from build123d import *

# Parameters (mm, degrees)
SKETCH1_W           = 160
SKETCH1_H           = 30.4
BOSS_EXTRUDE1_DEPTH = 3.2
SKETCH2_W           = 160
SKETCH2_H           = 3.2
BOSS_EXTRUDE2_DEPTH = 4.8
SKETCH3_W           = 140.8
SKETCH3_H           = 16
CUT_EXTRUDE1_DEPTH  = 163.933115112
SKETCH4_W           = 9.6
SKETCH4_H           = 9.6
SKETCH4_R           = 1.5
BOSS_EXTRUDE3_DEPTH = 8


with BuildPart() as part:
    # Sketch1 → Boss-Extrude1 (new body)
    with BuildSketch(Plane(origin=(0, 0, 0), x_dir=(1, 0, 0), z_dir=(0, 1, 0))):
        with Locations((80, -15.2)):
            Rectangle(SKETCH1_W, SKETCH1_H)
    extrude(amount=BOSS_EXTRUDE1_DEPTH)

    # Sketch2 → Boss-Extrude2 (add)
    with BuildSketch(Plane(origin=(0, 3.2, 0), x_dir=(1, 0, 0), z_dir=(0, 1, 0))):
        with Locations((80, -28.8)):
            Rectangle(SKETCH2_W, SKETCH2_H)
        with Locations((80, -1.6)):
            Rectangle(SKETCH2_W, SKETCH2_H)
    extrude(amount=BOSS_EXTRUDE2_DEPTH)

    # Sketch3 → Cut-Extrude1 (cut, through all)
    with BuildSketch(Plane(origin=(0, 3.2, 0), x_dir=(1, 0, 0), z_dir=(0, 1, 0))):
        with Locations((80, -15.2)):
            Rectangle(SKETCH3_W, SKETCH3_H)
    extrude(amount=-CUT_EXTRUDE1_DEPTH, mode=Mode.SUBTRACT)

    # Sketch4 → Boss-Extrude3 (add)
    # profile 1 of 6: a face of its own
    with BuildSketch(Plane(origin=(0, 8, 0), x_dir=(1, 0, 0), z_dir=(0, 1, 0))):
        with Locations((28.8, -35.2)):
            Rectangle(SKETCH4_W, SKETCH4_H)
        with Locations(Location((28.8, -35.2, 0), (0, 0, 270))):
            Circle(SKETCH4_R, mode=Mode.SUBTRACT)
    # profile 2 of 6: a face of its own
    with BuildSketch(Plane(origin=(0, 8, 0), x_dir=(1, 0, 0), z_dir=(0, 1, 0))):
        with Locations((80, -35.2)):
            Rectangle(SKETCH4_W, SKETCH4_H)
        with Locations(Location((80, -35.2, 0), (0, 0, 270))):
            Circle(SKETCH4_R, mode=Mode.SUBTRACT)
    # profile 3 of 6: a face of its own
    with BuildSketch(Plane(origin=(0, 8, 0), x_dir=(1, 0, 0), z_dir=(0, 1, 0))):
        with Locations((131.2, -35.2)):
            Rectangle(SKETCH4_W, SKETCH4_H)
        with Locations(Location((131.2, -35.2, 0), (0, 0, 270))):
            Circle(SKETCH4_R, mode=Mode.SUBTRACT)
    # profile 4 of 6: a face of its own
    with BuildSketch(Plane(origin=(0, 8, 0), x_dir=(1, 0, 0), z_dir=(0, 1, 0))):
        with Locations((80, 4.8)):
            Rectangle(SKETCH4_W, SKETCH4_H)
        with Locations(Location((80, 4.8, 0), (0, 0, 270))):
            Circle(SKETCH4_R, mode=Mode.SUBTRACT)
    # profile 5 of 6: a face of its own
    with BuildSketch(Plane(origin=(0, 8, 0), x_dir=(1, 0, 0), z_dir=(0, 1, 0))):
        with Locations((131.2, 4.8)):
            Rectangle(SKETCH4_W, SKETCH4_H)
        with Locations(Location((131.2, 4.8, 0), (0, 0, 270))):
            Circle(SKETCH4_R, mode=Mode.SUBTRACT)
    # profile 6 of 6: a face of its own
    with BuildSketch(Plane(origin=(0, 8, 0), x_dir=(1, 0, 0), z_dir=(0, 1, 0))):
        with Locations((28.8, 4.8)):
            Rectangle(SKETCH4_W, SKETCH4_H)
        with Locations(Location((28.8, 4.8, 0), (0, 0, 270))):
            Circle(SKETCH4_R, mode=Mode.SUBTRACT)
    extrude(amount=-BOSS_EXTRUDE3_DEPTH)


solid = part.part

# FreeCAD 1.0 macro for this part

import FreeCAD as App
import Part
import Sketcher

V = App.Vector

doc = App.newDocument("Part")
params = doc.addObject("Spreadsheet::Sheet", "Params")
for row, (alias, value) in enumerate([
    ("sketch1_width", "160 mm"),
    ("sketch1_height", "30.4 mm"),
    ("pad1_length", "3.2 mm"),
    ("sketch2_width", "160 mm"),
    ("sketch2_height", "3.2 mm"),
    ("pad2_length", "4.8 mm"),
    ("sketch3_height", "16 mm"),
    ("sketch3_width", "140.8 mm"),
    ("sketch4_diameter", "3 mm"),
    ("sketch4_width", "9.6 mm"),
    ("pad3_length", "8 mm"),
], start=1):
    params.set(f"A{row}", alias)
    params.set(f"B{row}", "=" + value)
    params.setAlias(f"B{row}", alias)

body = doc.addObject("PartDesign::Body", "Body")

sketch1 = body.newObject("Sketcher::SketchObject", "Sketch")
sketch1.AttachmentSupport = (doc.getObject("XZ_Plane"), [""])
sketch1.MapMode = "FlatFace"
sketch1.addGeometry([
    Part.LineSegment(V(0, 0, 0), V(0, 30, 0)),
    Part.LineSegment(V(0, 30, 0), V(160, 30, 0)),
    Part.LineSegment(V(160, 30, 0), V(160, 0, 0)),
    Part.LineSegment(V(160, 0, 0), V(0, 0, 0)),
], False)
sketch1.addConstraint([
    Sketcher.Constraint("Coincident", 0, 2, 1, 1),
    Sketcher.Constraint("Coincident", 1, 2, 2, 1),
    Sketcher.Constraint("Coincident", 2, 2, 3, 1),
    Sketcher.Constraint("Coincident", 3, 2, 0, 1),
    Sketcher.Constraint("Vertical", 0),
    Sketcher.Constraint("Horizontal", 1),
    Sketcher.Constraint("Vertical", 2),
    Sketcher.Constraint("Horizontal", 3),
    Sketcher.Constraint("Coincident", 3, 2, -1, 1),
    Sketcher.Constraint("DistanceX", 1, 1, 1, 2, 160.0),
    Sketcher.Constraint("DistanceY", 0, 1, 0, 2, 30.4),
])
sketch1.setExpression("Constraints[9]", "Params.sketch1_width")
sketch1.setExpression("Constraints[10]", "Params.sketch1_height")
pad1 = body.newObject("PartDesign::Pad", "Pad")
pad1.Profile = sketch1
pad1.setExpression("Length", "Params.pad1_length")
pad1.Reversed = True

sketch2 = body.newObject("Sketcher::SketchObject", "Sketch001")
sketch2.AttachmentSupport = (doc.getObject("XZ_Plane"), [""])
sketch2.MapMode = "FlatFace"
sketch2.AttachmentOffset = App.Placement(V(0, 0, -3.2), App.Rotation())
sketch2.addGeometry([
    Part.LineSegment(V(0, 27.2, 0), V(0, 30.4, 0)),
    Part.LineSegment(V(0, 30.4, 0), V(160, 30.4, 0)),
    Part.LineSegment(V(160, 30.4, 0), V(160, 27.2, 0)),
    Part.LineSegment(V(160, 27.2, 0), V(0, 27.2, 0)),
    Part.LineSegment(V(0, 0, 0), V(0, 3.2, 0)),
    Part.LineSegment(V(0, 3.2, 0), V(160, 3.2, 0)),
    Part.LineSegment(V(160, 3.2, 0), V(160, 0, 0)),
    Part.LineSegment(V(160, 0, 0), V(0, 0, 0)),
], False)
sketch2.addConstraint([
    Sketcher.Constraint("Coincident", 0, 2, 1, 1),
    Sketcher.Constraint("Coincident", 1, 2, 2, 1),
    Sketcher.Constraint("Coincident", 2, 2, 3, 1),
    Sketcher.Constraint("Coincident", 3, 2, 0, 1),
    Sketcher.Constraint("Coincident", 4, 2, 5, 1),
    Sketcher.Constraint("Coincident", 5, 2, 6, 1),
    Sketcher.Constraint("Coincident", 6, 2, 7, 1),
    Sketcher.Constraint("Coincident", 7, 2, 4, 1),
    Sketcher.Constraint("Vertical", 0),
    Sketcher.Constraint("Horizontal", 1),
    Sketcher.Constraint("Vertical", 2),
    Sketcher.Constraint("Horizontal", 3),
    Sketcher.Constraint("Vertical", 4),
    Sketcher.Constraint("Horizontal", 5),
    Sketcher.Constraint("Vertical", 6),
    Sketcher.Constraint("Horizontal", 7),
    Sketcher.Constraint("Coincident", 7, 2, -1, 1),
    Sketcher.Constraint("PointOnObject", 0, 2, -2),
    Sketcher.Constraint("Vertical", 2, 2, 5, 2),
    Sketcher.Constraint("Equal", 2, 4),
    Sketcher.Constraint("DistanceX", 1, 1, 1, 2, 160.0),
    Sketcher.Constraint("DistanceY", 0, 1, 0, 2, 3.2),
    Sketcher.Constraint("DistanceY", 4, 2, 3, 2, 24.0),
])
sketch2.setExpression("Constraints[20]", "Params.sketch2_width")
sketch2.setExpression("Constraints[21]", "Params.sketch2_height")
pad2 = body.newObject("PartDesign::Pad", "Pad001")
pad2.Profile = sketch2
pad2.setExpression("Length", "Params.pad2_length")
pad2.Reversed = True

sketch3 = body.newObject("Sketcher::SketchObject", "Sketch002")
sketch3.AttachmentSupport = (doc.getObject("XZ_Plane"), [""])
sketch3.MapMode = "FlatFace"
sketch3.AttachmentOffset = App.Placement(V(0, 0, -3.2), App.Rotation())
sketch3.addGeometry([
    Part.LineSegment(V(10, 7, 0), V(10, 23, 0)),
    Part.LineSegment(V(10, 23, 0), V(150, 23, 0)),
    Part.LineSegment(V(150, 23, 0), V(150, 7, 0)),
    Part.LineSegment(V(150, 7, 0), V(10, 7, 0)),
], False)
sketch3.addConstraint([
    Sketcher.Constraint("Coincident", 0, 2, 1, 1),
    Sketcher.Constraint("Coincident", 1, 2, 2, 1),
    Sketcher.Constraint("Coincident", 2, 2, 3, 1),
    Sketcher.Constraint("Coincident", 3, 2, 0, 1),
    Sketcher.Constraint("Vertical", 0),
    Sketcher.Constraint("Horizontal", 1),
    Sketcher.Constraint("Vertical", 2),
    Sketcher.Constraint("Horizontal", 3),
    Sketcher.Constraint("DistanceY", 0, 1, 0, 2, 16.0),
    Sketcher.Constraint("DistanceX", 1, 1, 1, 2, 140.8),
    Sketcher.Constraint("DistanceX", -1, 1, 0, 2, 9.6),
    Sketcher.Constraint("DistanceY", -1, 1, 0, 2, 23.2),
])
sketch3.setExpression("Constraints[8]", "Params.sketch3_height")
sketch3.setExpression("Constraints[9]", "Params.sketch3_width")
pocket1 = body.newObject("PartDesign::Pocket", "Pocket")
pocket1.Profile = sketch3
pocket1.Type = "ThroughAll"
pocket1.Reversed = True

sketch4 = body.newObject("Sketcher::SketchObject", "Sketch003")
sketch4.AttachmentSupport = (doc.getObject("XZ_Plane"), [""])
sketch4.MapMode = "FlatFace"
sketch4.AttachmentOffset = App.Placement(V(0, 0, -8), App.Rotation())
sketch4.addGeometry([
    Part.LineSegment(V(24, 30.4, 0), V(24, 40, 0)),
    Part.LineSegment(V(24, 40, 0), V(33.6, 40, 0)),
    Part.LineSegment(V(33.6, 40, 0), V(33.6, 30.4, 0)),
    Part.LineSegment(V(33.6, 30.4, 0), V(24, 30.4, 0)),
    Part.Circle(V(28.8, 35.2, 0), V(0, 0, 1), 1.5),
    Part.LineSegment(V(75.2, 30.4, 0), V(75.2, 40, 0)),
    Part.LineSegment(V(75.2, 40, 0), V(84.8, 40, 0)),
    Part.LineSegment(V(84.8, 40, 0), V(84.8, 30.4, 0)),
    Part.LineSegment(V(84.8, 30.4, 0), V(75.2, 30.4, 0)),
    Part.Circle(V(80, 35.2, 0), V(0, 0, 1), 1.5),
    Part.LineSegment(V(126.4, 30.4, 0), V(126.4, 40, 0)),
    Part.LineSegment(V(126.4, 40, 0), V(136, 40, 0)),
    Part.LineSegment(V(136, 40, 0), V(136, 30.4, 0)),
    Part.LineSegment(V(136, 30.4, 0), V(126.4, 30.4, 0)),
    Part.Circle(V(131.2, 35.2, 0), V(0, 0, 1), 1.5),
    Part.LineSegment(V(75.2, -9.6, 0), V(75.2, 0, 0)),
    Part.LineSegment(V(75.2, 0, 0), V(84.8, 0, 0)),
    Part.LineSegment(V(84.8, 0, 0), V(84.8, -9.6, 0)),
    Part.LineSegment(V(84.8, -9.6, 0), V(75.2, -9.6, 0)),
    Part.Circle(V(80, -4.8, 0), V(0, 0, 1), 1.5),
    Part.LineSegment(V(126.4, -9.6, 0), V(126.4, 0, 0)),
    Part.LineSegment(V(126.4, 0, 0), V(136, 0, 0)),
    Part.LineSegment(V(136, 0, 0), V(136, -9.6, 0)),
    Part.LineSegment(V(136, -9.6, 0), V(126.4, -9.6, 0)),
    Part.Circle(V(131.2, -4.8, 0), V(0, 0, 1), 1.5),
    Part.LineSegment(V(24, -9.6, 0), V(24, 0, 0)),
    Part.LineSegment(V(24, 0, 0), V(33.6, 0, 0)),
    Part.LineSegment(V(33.6, 0, 0), V(33.6, -9.6, 0)),
    Part.LineSegment(V(33.6, -9.6, 0), V(24, -9.6, 0)),
    Part.Circle(V(28.8, -4.8, 0), V(0, 0, 1), 1.5),
], False)
sketch4.addConstraint([
    Sketcher.Constraint("Coincident", 0, 2, 1, 1),
    Sketcher.Constraint("Coincident", 1, 2, 2, 1),
    Sketcher.Constraint("Coincident", 2, 2, 3, 1),
    Sketcher.Constraint("Coincident", 3, 2, 0, 1),
    Sketcher.Constraint("Coincident", 5, 2, 6, 1),
    Sketcher.Constraint("Coincident", 6, 2, 7, 1),
    Sketcher.Constraint("Coincident", 7, 2, 8, 1),
    Sketcher.Constraint("Coincident", 8, 2, 5, 1),
    Sketcher.Constraint("Coincident", 10, 2, 11, 1),
    Sketcher.Constraint("Coincident", 11, 2, 12, 1),
    Sketcher.Constraint("Coincident", 12, 2, 13, 1),
    Sketcher.Constraint("Coincident", 13, 2, 10, 1),
    Sketcher.Constraint("Coincident", 15, 2, 16, 1),
    Sketcher.Constraint("Coincident", 16, 2, 17, 1),
    Sketcher.Constraint("Coincident", 17, 2, 18, 1),
    Sketcher.Constraint("Coincident", 18, 2, 15, 1),
    Sketcher.Constraint("Coincident", 20, 2, 21, 1),
    Sketcher.Constraint("Coincident", 21, 2, 22, 1),
    Sketcher.Constraint("Coincident", 22, 2, 23, 1),
    Sketcher.Constraint("Coincident", 23, 2, 20, 1),
    Sketcher.Constraint("Coincident", 25, 2, 26, 1),
    Sketcher.Constraint("Coincident", 26, 2, 27, 1),
    Sketcher.Constraint("Coincident", 27, 2, 28, 1),
    Sketcher.Constraint("Coincident", 28, 2, 25, 1),
    Sketcher.Constraint("Vertical", 0),
    Sketcher.Constraint("Horizontal", 1),
    Sketcher.Constraint("Vertical", 2),
    Sketcher.Constraint("Horizontal", 3),
    Sketcher.Constraint("Vertical", 5),
    Sketcher.Constraint("Horizontal", 6),
    Sketcher.Constraint("Vertical", 7),
    Sketcher.Constraint("Horizontal", 8),
    Sketcher.Constraint("Vertical", 10),
    Sketcher.Constraint("Horizontal", 11),
    Sketcher.Constraint("Vertical", 12),
    Sketcher.Constraint("Horizontal", 13),
    Sketcher.Constraint("Vertical", 15),
    Sketcher.Constraint("Horizontal", 16),
    Sketcher.Constraint("Vertical", 17),
    Sketcher.Constraint("Horizontal", 18),
    Sketcher.Constraint("Vertical", 20),
    Sketcher.Constraint("Horizontal", 21),
    Sketcher.Constraint("Vertical", 22),
    Sketcher.Constraint("Horizontal", 23),
    Sketcher.Constraint("Vertical", 25),
    Sketcher.Constraint("Horizontal", 26),
    Sketcher.Constraint("Vertical", 27),
    Sketcher.Constraint("Horizontal", 28),
    Sketcher.Constraint("Equal", 4, 9),
    Sketcher.Constraint("Equal", 9, 14),
    Sketcher.Constraint("Equal", 14, 19),
    Sketcher.Constraint("Equal", 19, 24),
    Sketcher.Constraint("Equal", 24, 29),
    Sketcher.Constraint("PointOnObject", 15, 2, -1),
    Sketcher.Constraint("PointOnObject", 20, 2, -1),
    Sketcher.Constraint("PointOnObject", 25, 2, -1),
    Sketcher.Constraint("Horizontal", 4, 3, 9, 3),
    Sketcher.Constraint("Horizontal", 9, 3, 14, 3),
    Sketcher.Constraint("Horizontal", 19, 3, 24, 3),
    Sketcher.Constraint("Horizontal", 24, 3, 29, 3),
    Sketcher.Constraint("Horizontal", 1, 2, 5, 2),
    Sketcher.Constraint("Horizontal", 3, 2, 7, 2),
    Sketcher.Constraint("Horizontal", 6, 2, 10, 2),
    Sketcher.Constraint("Horizontal", 8, 2, 12, 2),
    Sketcher.Constraint("Horizontal", 18, 2, 22, 2),
    Sketcher.Constraint("Horizontal", 23, 2, 27, 2),
    Sketcher.Constraint("Vertical", 9, 3, 19, 3),
    Sketcher.Constraint("Vertical", 14, 3, 24, 3),
    Sketcher.Constraint("Vertical", 4, 3, 29, 3),
    Sketcher.Constraint("Vertical", 8, 2, 15, 2),
    Sketcher.Constraint("Vertical", 7, 2, 16, 2),
    Sketcher.Constraint("Vertical", 13, 2, 20, 2),
    Sketcher.Constraint("Vertical", 12, 2, 21, 2),
    Sketcher.Constraint("Vertical", 3, 2, 25, 2),
    Sketcher.Constraint("Vertical", 2, 2, 26, 2),
    Sketcher.Constraint("Equal", 3, 6),
    Sketcher.Constraint("Equal", 8, 11),
    Sketcher.Constraint("Equal", 28, 0),
    Sketcher.Constraint("Equal", 12, 15),
    Sketcher.Constraint("Diameter", 4, 3.0),
    Sketcher.Constraint("DistanceX", 1, 1, 1, 2, 9.6),
    Sketcher.Constraint("DistanceX", -1, 1, 9, 3, 80.0),
    Sketcher.Constraint("DistanceX", -1, 1, 0, 2, 24.0),
    Sketcher.Constraint("DistanceY", -1, 1, 0, 2, 40.0),
    Sketcher.Constraint("DistanceX", -1, 1, 11, 2, 136.0),
    Sketcher.Constraint("DistanceY", 19, 3, 9, 3, 40.0),
    Sketcher.Constraint("DistanceX", -1, 1, 4, 3, 28.8),
    Sketcher.Constraint("DistanceY", -1, 1, 4, 3, 35.2),
    Sketcher.Constraint("DistanceX", -1, 1, 14, 3, 131.2),
    Sketcher.Constraint("DistanceX", -1, 1, 5, 2, 75.2),
])
sketch4.setExpression("Constraints[79]", "Params.sketch4_diameter")
sketch4.setExpression("Constraints[80]", "Params.sketch4_width")
pad3 = body.newObject("PartDesign::Pad", "Pad002")
pad3.Profile = sketch4
pad3.setExpression("Length", "Params.pad3_length")

doc.recompute()
